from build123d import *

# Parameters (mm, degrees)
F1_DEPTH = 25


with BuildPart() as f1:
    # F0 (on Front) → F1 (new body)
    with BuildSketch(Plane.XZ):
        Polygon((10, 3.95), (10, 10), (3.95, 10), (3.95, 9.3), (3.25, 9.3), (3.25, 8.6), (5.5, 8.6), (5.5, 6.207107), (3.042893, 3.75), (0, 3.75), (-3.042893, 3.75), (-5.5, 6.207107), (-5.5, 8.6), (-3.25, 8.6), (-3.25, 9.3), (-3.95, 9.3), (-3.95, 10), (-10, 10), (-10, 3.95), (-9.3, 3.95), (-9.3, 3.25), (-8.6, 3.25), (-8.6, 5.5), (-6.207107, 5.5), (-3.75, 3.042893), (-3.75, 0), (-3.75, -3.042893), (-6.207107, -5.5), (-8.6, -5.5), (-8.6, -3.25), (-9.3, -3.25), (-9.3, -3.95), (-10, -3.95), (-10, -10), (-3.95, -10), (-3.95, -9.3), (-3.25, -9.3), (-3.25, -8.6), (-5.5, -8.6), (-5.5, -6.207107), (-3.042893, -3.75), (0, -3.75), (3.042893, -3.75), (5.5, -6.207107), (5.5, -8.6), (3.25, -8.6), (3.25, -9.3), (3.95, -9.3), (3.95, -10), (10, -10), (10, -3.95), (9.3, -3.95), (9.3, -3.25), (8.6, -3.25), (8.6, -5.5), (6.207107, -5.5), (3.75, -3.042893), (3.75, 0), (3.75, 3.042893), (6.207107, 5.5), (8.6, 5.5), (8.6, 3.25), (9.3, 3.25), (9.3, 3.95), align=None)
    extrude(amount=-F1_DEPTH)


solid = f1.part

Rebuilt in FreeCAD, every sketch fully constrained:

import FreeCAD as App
import Part
import Sketcher
Q = App.Units.Quantity

doc = App.newDocument("Part")
body = doc.addObject("PartDesign::Body", "Body")

sketch1 = body.newObject("Sketcher::SketchObject", "Sketch")
sketch1.AttachmentSupport = (doc.getObject("XZ_Plane"), [""])
sketch1.MapMode = "FlatFace"
sketch1.addGeometry([
    Part.LineSegment(App.Vector(10, 4, 0), App.Vector(10, 10, 0)),
    Part.LineSegment(App.Vector(10, 10, 0), App.Vector(4, 10, 0)),
    Part.LineSegment(App.Vector(4, 10, 0), App.Vector(4, 9.3, 0)),
    Part.LineSegment(App.Vector(4, 9.3, 0), App.Vector(3.2, 9.3, 0)),
    Part.LineSegment(App.Vector(3.2, 9.3, 0), App.Vector(3.2, 8.6, 0)),
    Part.LineSegment(App.Vector(3.2, 8.6, 0), App.Vector(5.5, 8.6, 0)),
    Part.LineSegment(App.Vector(5.5, 8.6, 0), App.Vector(5.5, 6.2, 0)),
    Part.LineSegment(App.Vector(5.5, 6.2, 0), App.Vector(3, 3.8, 0)),
    Part.LineSegment(App.Vector(3, 3.8, 0), App.Vector(-3, 3.8, 0)),
    Part.LineSegment(App.Vector(-3, 3.8, 0), App.Vector(-5.5, 6.2, 0)),
    Part.LineSegment(App.Vector(-5.5, 6.2, 0), App.Vector(-5.5, 8.6, 0)),
    Part.LineSegment(App.Vector(-5.5, 8.6, 0), App.Vector(-3.2, 8.6, 0)),
    Part.LineSegment(App.Vector(-3.2, 8.6, 0), App.Vector(-3.2, 9.3, 0)),
    Part.LineSegment(App.Vector(-3.2, 9.3, 0), App.Vector(-4, 9.3, 0)),
    Part.LineSegment(App.Vector(-4, 9.3, 0), App.Vector(-4, 10, 0)),
    Part.LineSegment(App.Vector(-4, 10, 0), App.Vector(-10, 10, 0)),
    Part.LineSegment(App.Vector(-10, 10, 0), App.Vector(-10, 4, 0)),
    Part.LineSegment(App.Vector(-10, 4, 0), App.Vector(-9.3, 4, 0)),
    Part.LineSegment(App.Vector(-9.3, 4, 0), App.Vector(-9.3, 3.2, 0)),
    Part.LineSegment(App.Vector(-9.3, 3.2, 0), App.Vector(-8.6, 3.2, 0)),
    Part.LineSegment(App.Vector(-8.6, 3.2, 0), App.Vector(-8.6, 5.5, 0)),
    Part.LineSegment(App.Vector(-8.6, 5.5, 0), App.Vector(-6.2, 5.5, 0)),
    Part.LineSegment(App.Vector(-6.2, 5.5, 0), App.Vector(-3.8, 3, 0)),
    Part.LineSegment(App.Vector(-3.8, 3, 0), App.Vector(-3.8, -3, 0)),
    Part.LineSegment(App.Vector(-3.8, -3, 0), App.Vector(-6.2, -5.5, 0)),
    Part.LineSegment(App.Vector(-6.2, -5.5, 0), App.Vector(-8.6, -5.5, 0)),
    Part.LineSegment(App.Vector(-8.6, -5.5, 0), App.Vector(-8.6, -3.2, 0)),
    Part.LineSegment(App.Vector(-8.6, -3.2, 0), App.Vector(-9.3, -3.2, 0)),
    Part.LineSegment(App.Vector(-9.3, -3.2, 0), App.Vector(-9.3, -4, 0)),
    Part.LineSegment(App.Vector(-9.3, -4, 0), App.Vector(-10, -4, 0)),
    Part.LineSegment(App.Vector(-10, -4, 0), App.Vector(-10, -10, 0)),
    Part.LineSegment(App.Vector(-10, -10, 0), App.Vector(-4, -10, 0)),
    Part.LineSegment(App.Vector(-4, -10, 0), App.Vector(-4, -9.3, 0)),
    Part.LineSegment(App.Vector(-4, -9.3, 0), App.Vector(-3.2, -9.3, 0)),
    Part.LineSegment(App.Vector(-3.2, -9.3, 0), App.Vector(-3.2, -8.6, 0)),
    Part.LineSegment(App.Vector(-3.2, -8.6, 0), App.Vector(-5.5, -8.6, 0)),
    Part.LineSegment(App.Vector(-5.5, -8.6, 0), App.Vector(-5.5, -6.2, 0)),
    Part.LineSegment(App.Vector(-5.5, -6.2, 0), App.Vector(-3, -3.8, 0)),
    Part.LineSegment(App.Vector(-3, -3.8, 0), App.Vector(3, -3.8, 0)),
    Part.LineSegment(App.Vector(3, -3.8, 0), App.Vector(5.5, -6.2, 0)),
    Part.LineSegment(App.Vector(5.5, -6.2, 0), App.Vector(5.5, -8.6, 0)),
    Part.LineSegment(App.Vector(5.5, -8.6, 0), App.Vector(3.2, -8.6, 0)),
    Part.LineSegment(App.Vector(3.2, -8.6, 0), App.Vector(3.2, -9.3, 0)),
    Part.LineSegment(App.Vector(3.2, -9.3, 0), App.Vector(4, -9.3, 0)),
    Part.LineSegment(App.Vector(4, -9.3, 0), App.Vector(4, -10, 0)),
    Part.LineSegment(App.Vector(4, -10, 0), App.Vector(10, -10, 0)),
    Part.LineSegment(App.Vector(10, -10, 0), App.Vector(10, -4, 0)),
    Part.LineSegment(App.Vector(10, -4, 0), App.Vector(9.3, -4, 0)),
    Part.LineSegment(App.Vector(9.3, -4, 0), App.Vector(9.3, -3.2, 0)),
    Part.LineSegment(App.Vector(9.3, -3.2, 0), App.Vector(8.6, -3.2, 0)),
    Part.LineSegment(App.Vector(8.6, -3.2, 0), App.Vector(8.6, -5.5, 0)),
    Part.LineSegment(App.Vector(8.6, -5.5, 0), App.Vector(6.2, -5.5, 0)),
    Part.LineSegment(App.Vector(6.2, -5.5, 0), App.Vector(3.8, -3, 0)),
    Part.LineSegment(App.Vector(3.8, -3, 0), App.Vector(3.8, 3, 0)),
    Part.LineSegment(App.Vector(3.8, 3, 0), App.Vector(6.2, 5.5, 0)),
    Part.LineSegment(App.Vector(6.2, 5.5, 0), App.Vector(8.6, 5.5, 0)),
    Part.LineSegment(App.Vector(8.6, 5.5, 0), App.Vector(8.6, 3.2, 0)),
    Part.LineSegment(App.Vector(8.6, 3.2, 0), App.Vector(9.3, 3.2, 0)),
    Part.LineSegment(App.Vector(9.3, 3.2, 0), App.Vector(9.3, 4, 0)),
    Part.LineSegment(App.Vector(9.3, 4, 0), App.Vector(10, 4, 0)),
], False)
sketch1.addConstraint([
    Sketcher.Constraint("Coincident", 0, 2, 1, 1),
    Sketcher.Constraint("Coincident", 1, 2, 2, 1),
    Sketcher.Constraint("Coincident", 2, 2, 3, 1),
    Sketcher.Constraint("Coincident", 3, 2, 4, 1),
    Sketcher.Constraint("Coincident", 4, 2, 5, 1),
    Sketcher.Constraint("Coincident", 5, 2, 6, 1),
    Sketcher.Constraint("Coincident", 6, 2, 7, 1),
    Sketcher.Constraint("Coincident", 7, 2, 8, 1),
    Sketcher.Constraint("Coincident", 8, 2, 9, 1),
    Sketcher.Constraint("Coincident", 9, 2, 10, 1),
    Sketcher.Constraint("Coincident", 10, 2, 11, 1),
    Sketcher.Constraint("Coincident", 11, 2, 12, 1),
    Sketcher.Constraint("Coincident", 12, 2, 13, 1),
    Sketcher.Constraint("Coincident", 13, 2, 14, 1),
    Sketcher.Constraint("Coincident", 14, 2, 15, 1),
    Sketcher.Constraint("Coincident", 15, 2, 16, 1),
    Sketcher.Constraint("Coincident", 16, 2, 17, 1),
    Sketcher.Constraint("Coincident", 17, 2, 18, 1),
    Sketcher.Constraint("Coincident", 18, 2, 19, 1),
    Sketcher.Constraint("Coincident", 19, 2, 20, 1),
    Sketcher.Constraint("Coincident", 20, 2, 21, 1),
    Sketcher.Constraint("Coincident", 21, 2, 22, 1),
    Sketcher.Constraint("Coincident", 22, 2, 23, 1),
    Sketcher.Constraint("Coincident", 23, 2, 24, 1),
    Sketcher.Constraint("Coincident", 24, 2, 25, 1),
    Sketcher.Constraint("Coincident", 25, 2, 26, 1),
    Sketcher.Constraint("Coincident", 26, 2, 27, 1),
    Sketcher.Constraint("Coincident", 27, 2, 28, 1),
    Sketcher.Constraint("Coincident", 28, 2, 29, 1),
    Sketcher.Constraint("Coincident", 29, 2, 30, 1),
    Sketcher.Constraint("Coincident", 30, 2, 31, 1),
    Sketcher.Constraint("Coincident", 31, 2, 32, 1),
    Sketcher.Constraint("Coincident", 32, 2, 33, 1),
    Sketcher.Constraint("Coincident", 33, 2, 34, 1),
    Sketcher.Constraint("Coincident", 34, 2, 35, 1),
    Sketcher.Constraint("Coincident", 35, 2, 36, 1),
    Sketcher.Constraint("Coincident", 36, 2, 37, 1),
    Sketcher.Constraint("Coincident", 37, 2, 38, 1),
    Sketcher.Constraint("Coincident", 38, 2, 39, 1),
    Sketcher.Constraint("Coincident", 39, 2, 40, 1),
    Sketcher.Constraint("Coincident", 40, 2, 41, 1),
    Sketcher.Constraint("Coincident", 41, 2, 42, 1),
    Sketcher.Constraint("Coincident", 42, 2, 43, 1),
    Sketcher.Constraint("Coincident", 43, 2, 44, 1),
    Sketcher.Constraint("Coincident", 44, 2, 45, 1),
    Sketcher.Constraint("Coincident", 45, 2, 46, 1),
    Sketcher.Constraint("Coincident", 46, 2, 47, 1),
    Sketcher.Constraint("Coincident", 47, 2, 48, 1),
    Sketcher.Constraint("Coincident", 48, 2, 49, 1),
    Sketcher.Constraint("Coincident", 49, 2, 50, 1),
    Sketcher.Constraint("Coincident", 50, 2, 51, 1),
    Sketcher.Constraint("Coincident", 51, 2, 52, 1),
    Sketcher.Constraint("Coincident", 52, 2, 53, 1),
    Sketcher.Constraint("Coincident", 53, 2, 54, 1),
    Sketcher.Constraint("Coincident", 54, 2, 55, 1),
    Sketcher.Constraint("Coincident", 55, 2, 56, 1),
    Sketcher.Constraint("Coincident", 56, 2, 57, 1),
    Sketcher.Constraint("Coincident", 57, 2, 58, 1),
    Sketcher.Constraint("Coincident", 58, 2, 59, 1),
    Sketcher.Constraint("Coincident", 59, 2, 0, 1),
    Sketcher.Constraint("Vertical", 0),
    Sketcher.Constraint("Horizontal", 1),
    Sketcher.Constraint("Vertical", 2),
    Sketcher.Constraint("Horizontal", 3),
    Sketcher.Constraint("Vertical", 4),
    Sketcher.Constraint("Horizontal", 5),
    Sketcher.Constraint("Vertical", 6),
    Sketcher.Constraint("Horizontal", 8),
    Sketcher.Constraint("Vertical", 10),
    Sketcher.Constraint("Horizontal", 11),
    Sketcher.Constraint("Vertical", 12),
    Sketcher.Constraint("Horizontal", 13),
    Sketcher.Constraint("Vertical", 14),
    Sketcher.Constraint("Horizontal", 15),
    Sketcher.Constraint("Vertical", 16),
    Sketcher.Constraint("Horizontal", 17),
    Sketcher.Constraint("Vertical", 18),
    Sketcher.Constraint("Horizontal", 19),
    Sketcher.Constraint("Vertical", 20),
    Sketcher.Constraint("Horizontal", 21),
    Sketcher.Constraint("Vertical", 23),
    Sketcher.Constraint("Horizontal", 25),
    Sketcher.Constraint("Vertical", 26),
    Sketcher.Constraint("Horizontal", 27),
    Sketcher.Constraint("Vertical", 28),
    Sketcher.Constraint("Horizontal", 29),
    Sketcher.Constraint("Vertical", 30),
    Sketcher.Constraint("Horizontal", 31),
    Sketcher.Constraint("Vertical", 32),
    Sketcher.Constraint("Horizontal", 33),
    Sketcher.Constraint("Vertical", 34),
    Sketcher.Constraint("Horizontal", 35),
    Sketcher.Constraint("Vertical", 36),
    Sketcher.Constraint("Horizontal", 38),
    Sketcher.Constraint("Vertical", 40),
    Sketcher.Constraint("Horizontal", 41),
    Sketcher.Constraint("Vertical", 42),
    Sketcher.Constraint("Horizontal", 43),
    Sketcher.Constraint("Vertical", 44),
    Sketcher.Constraint("Horizontal", 45),
    Sketcher.Constraint("Vertical", 46),
    Sketcher.Constraint("Horizontal", 47),
    Sketcher.Constraint("Vertical", 48),
    Sketcher.Constraint("Horizontal", 49),
    Sketcher.Constraint("Vertical", 50),
    Sketcher.Constraint("Horizontal", 51),
    Sketcher.Constraint("Vertical", 53),
    Sketcher.Constraint("Horizontal", 55),
    Sketcher.Constraint("Vertical", 56),
    Sketcher.Constraint("Horizontal", 57),
    Sketcher.Constraint("Vertical", 58),
    Sketcher.Constraint("Horizontal", 59),
    Sketcher.Constraint("Symmetric", 0, 2, 30, 2, -1, 1),
    Sketcher.Constraint("Symmetric", 2, 2, 32, 2, -1, 1),
    Sketcher.Constraint("Symmetric", 4, 2, 34, 2, -1, 1),
    Sketcher.Constraint("Symmetric", 6, 2, 36, 2, -1, 1),
    Sketcher.Constraint("Symmetric", 7, 2, 37, 2, -1, 1),
    Sketcher.Constraint("Symmetric", 9, 2, 39, 2, -1, 1),
    Sketcher.Constraint("Symmetric", 11, 2, 41, 2, -1, 1),
    Sketcher.Constraint("Symmetric", 13, 2, 43, 2, -1, 1),
    Sketcher.Constraint("Symmetric", 15, 2, 45, 2, -1, 1),
    Sketcher.Constraint("Symmetric", 17, 2, 47, 2, -1, 1),
    Sketcher.Constraint("Symmetric", 19, 2, 49, 2, -1, 1),
    Sketcher.Constraint("Symmetric", 21, 2, 51, 2, -1, 1),
    Sketcher.Constraint("Symmetric", 22, 2, 52, 2, -1, 1),
    Sketcher.Constraint("Symmetric", 24, 2, 54, 2, -1, 1),
    Sketcher.Constraint("Symmetric", 26, 2, 56, 2, -1, 1),
    Sketcher.Constraint("Symmetric", 28, 2, 58, 2, -1, 1),
    Sketcher.Constraint("Symmetric", 6, 2, 9, 2, -2),
    Sketcher.Constraint("Symmetric", 4, 2, 11, 2, -2),
    Sketcher.Constraint("Symmetric", 2, 2, 13, 2, -2),
    Sketcher.Constraint("Symmetric", 0, 2, 15, 2, -2),
    Sketcher.Constraint("Symmetric", 28, 2, 47, 2, -2),
    Sketcher.Constraint("Symmetric", 26, 2, 49, 2, -2),
    Sketcher.Constraint("Symmetric", 24, 2, 51, 2, -2),
    Sketcher.Constraint("Perpendicular", 7, 9),
    Sketcher.Constraint("Parallel", 9, 22),
    Sketcher.Constraint("Perpendicular", 22, 24),
    Sketcher.Constraint("Perpendicular", 37, 39),
    Sketcher.Constraint("Perpendicular", 52, 54),
    Sketcher.Constraint("Horizontal", 23, 2, 52, 2),
    Sketcher.Constraint("Equal", 13, 17),
    Sketcher.Constraint("Equal", 17, 19),
    Sketcher.Constraint("Equal", 45, 0),
    Sketcher.Constraint("Equal", 59, 2),
    Sketcher.Constraint("Equal", 2, 4),
    Sketcher.Constraint("Equal", 55, 6),
    Sketcher.Constraint("Equal", 14, 18),
    Sketcher.Constraint("Equal", 41, 20),
    Sketcher.Constraint("Equal", 38, 23),
    Sketcher.Constraint("Equal", 9, 22),
    Sketcher.Constraint("DistanceX", 3, 2, 3, 1, Q("0.7 mm")),
    Sketcher.Constraint("DistanceX", -1, 1, 0, 2, Q("10 mm")),
    Sketcher.Constraint("DistanceX", 1, 2, 1, 1, Q("6.05 mm")),
    Sketcher.Constraint("DistanceX", 5, 1, 5, 2, Q("2.25 mm")),
    Sketcher.Constraint("DistanceY", 8, 2, 16, 2, Q("0.2 mm")),
    Sketcher.Constraint("DistanceX", 8, 2, 8, 1, Q("6.085786 mm")),
])
pad1 = body.newObject("PartDesign::Pad", "Pad")
pad1.Profile = sketch1
pad1.Length = 25
pad1.Reversed = True

doc.recompute()
